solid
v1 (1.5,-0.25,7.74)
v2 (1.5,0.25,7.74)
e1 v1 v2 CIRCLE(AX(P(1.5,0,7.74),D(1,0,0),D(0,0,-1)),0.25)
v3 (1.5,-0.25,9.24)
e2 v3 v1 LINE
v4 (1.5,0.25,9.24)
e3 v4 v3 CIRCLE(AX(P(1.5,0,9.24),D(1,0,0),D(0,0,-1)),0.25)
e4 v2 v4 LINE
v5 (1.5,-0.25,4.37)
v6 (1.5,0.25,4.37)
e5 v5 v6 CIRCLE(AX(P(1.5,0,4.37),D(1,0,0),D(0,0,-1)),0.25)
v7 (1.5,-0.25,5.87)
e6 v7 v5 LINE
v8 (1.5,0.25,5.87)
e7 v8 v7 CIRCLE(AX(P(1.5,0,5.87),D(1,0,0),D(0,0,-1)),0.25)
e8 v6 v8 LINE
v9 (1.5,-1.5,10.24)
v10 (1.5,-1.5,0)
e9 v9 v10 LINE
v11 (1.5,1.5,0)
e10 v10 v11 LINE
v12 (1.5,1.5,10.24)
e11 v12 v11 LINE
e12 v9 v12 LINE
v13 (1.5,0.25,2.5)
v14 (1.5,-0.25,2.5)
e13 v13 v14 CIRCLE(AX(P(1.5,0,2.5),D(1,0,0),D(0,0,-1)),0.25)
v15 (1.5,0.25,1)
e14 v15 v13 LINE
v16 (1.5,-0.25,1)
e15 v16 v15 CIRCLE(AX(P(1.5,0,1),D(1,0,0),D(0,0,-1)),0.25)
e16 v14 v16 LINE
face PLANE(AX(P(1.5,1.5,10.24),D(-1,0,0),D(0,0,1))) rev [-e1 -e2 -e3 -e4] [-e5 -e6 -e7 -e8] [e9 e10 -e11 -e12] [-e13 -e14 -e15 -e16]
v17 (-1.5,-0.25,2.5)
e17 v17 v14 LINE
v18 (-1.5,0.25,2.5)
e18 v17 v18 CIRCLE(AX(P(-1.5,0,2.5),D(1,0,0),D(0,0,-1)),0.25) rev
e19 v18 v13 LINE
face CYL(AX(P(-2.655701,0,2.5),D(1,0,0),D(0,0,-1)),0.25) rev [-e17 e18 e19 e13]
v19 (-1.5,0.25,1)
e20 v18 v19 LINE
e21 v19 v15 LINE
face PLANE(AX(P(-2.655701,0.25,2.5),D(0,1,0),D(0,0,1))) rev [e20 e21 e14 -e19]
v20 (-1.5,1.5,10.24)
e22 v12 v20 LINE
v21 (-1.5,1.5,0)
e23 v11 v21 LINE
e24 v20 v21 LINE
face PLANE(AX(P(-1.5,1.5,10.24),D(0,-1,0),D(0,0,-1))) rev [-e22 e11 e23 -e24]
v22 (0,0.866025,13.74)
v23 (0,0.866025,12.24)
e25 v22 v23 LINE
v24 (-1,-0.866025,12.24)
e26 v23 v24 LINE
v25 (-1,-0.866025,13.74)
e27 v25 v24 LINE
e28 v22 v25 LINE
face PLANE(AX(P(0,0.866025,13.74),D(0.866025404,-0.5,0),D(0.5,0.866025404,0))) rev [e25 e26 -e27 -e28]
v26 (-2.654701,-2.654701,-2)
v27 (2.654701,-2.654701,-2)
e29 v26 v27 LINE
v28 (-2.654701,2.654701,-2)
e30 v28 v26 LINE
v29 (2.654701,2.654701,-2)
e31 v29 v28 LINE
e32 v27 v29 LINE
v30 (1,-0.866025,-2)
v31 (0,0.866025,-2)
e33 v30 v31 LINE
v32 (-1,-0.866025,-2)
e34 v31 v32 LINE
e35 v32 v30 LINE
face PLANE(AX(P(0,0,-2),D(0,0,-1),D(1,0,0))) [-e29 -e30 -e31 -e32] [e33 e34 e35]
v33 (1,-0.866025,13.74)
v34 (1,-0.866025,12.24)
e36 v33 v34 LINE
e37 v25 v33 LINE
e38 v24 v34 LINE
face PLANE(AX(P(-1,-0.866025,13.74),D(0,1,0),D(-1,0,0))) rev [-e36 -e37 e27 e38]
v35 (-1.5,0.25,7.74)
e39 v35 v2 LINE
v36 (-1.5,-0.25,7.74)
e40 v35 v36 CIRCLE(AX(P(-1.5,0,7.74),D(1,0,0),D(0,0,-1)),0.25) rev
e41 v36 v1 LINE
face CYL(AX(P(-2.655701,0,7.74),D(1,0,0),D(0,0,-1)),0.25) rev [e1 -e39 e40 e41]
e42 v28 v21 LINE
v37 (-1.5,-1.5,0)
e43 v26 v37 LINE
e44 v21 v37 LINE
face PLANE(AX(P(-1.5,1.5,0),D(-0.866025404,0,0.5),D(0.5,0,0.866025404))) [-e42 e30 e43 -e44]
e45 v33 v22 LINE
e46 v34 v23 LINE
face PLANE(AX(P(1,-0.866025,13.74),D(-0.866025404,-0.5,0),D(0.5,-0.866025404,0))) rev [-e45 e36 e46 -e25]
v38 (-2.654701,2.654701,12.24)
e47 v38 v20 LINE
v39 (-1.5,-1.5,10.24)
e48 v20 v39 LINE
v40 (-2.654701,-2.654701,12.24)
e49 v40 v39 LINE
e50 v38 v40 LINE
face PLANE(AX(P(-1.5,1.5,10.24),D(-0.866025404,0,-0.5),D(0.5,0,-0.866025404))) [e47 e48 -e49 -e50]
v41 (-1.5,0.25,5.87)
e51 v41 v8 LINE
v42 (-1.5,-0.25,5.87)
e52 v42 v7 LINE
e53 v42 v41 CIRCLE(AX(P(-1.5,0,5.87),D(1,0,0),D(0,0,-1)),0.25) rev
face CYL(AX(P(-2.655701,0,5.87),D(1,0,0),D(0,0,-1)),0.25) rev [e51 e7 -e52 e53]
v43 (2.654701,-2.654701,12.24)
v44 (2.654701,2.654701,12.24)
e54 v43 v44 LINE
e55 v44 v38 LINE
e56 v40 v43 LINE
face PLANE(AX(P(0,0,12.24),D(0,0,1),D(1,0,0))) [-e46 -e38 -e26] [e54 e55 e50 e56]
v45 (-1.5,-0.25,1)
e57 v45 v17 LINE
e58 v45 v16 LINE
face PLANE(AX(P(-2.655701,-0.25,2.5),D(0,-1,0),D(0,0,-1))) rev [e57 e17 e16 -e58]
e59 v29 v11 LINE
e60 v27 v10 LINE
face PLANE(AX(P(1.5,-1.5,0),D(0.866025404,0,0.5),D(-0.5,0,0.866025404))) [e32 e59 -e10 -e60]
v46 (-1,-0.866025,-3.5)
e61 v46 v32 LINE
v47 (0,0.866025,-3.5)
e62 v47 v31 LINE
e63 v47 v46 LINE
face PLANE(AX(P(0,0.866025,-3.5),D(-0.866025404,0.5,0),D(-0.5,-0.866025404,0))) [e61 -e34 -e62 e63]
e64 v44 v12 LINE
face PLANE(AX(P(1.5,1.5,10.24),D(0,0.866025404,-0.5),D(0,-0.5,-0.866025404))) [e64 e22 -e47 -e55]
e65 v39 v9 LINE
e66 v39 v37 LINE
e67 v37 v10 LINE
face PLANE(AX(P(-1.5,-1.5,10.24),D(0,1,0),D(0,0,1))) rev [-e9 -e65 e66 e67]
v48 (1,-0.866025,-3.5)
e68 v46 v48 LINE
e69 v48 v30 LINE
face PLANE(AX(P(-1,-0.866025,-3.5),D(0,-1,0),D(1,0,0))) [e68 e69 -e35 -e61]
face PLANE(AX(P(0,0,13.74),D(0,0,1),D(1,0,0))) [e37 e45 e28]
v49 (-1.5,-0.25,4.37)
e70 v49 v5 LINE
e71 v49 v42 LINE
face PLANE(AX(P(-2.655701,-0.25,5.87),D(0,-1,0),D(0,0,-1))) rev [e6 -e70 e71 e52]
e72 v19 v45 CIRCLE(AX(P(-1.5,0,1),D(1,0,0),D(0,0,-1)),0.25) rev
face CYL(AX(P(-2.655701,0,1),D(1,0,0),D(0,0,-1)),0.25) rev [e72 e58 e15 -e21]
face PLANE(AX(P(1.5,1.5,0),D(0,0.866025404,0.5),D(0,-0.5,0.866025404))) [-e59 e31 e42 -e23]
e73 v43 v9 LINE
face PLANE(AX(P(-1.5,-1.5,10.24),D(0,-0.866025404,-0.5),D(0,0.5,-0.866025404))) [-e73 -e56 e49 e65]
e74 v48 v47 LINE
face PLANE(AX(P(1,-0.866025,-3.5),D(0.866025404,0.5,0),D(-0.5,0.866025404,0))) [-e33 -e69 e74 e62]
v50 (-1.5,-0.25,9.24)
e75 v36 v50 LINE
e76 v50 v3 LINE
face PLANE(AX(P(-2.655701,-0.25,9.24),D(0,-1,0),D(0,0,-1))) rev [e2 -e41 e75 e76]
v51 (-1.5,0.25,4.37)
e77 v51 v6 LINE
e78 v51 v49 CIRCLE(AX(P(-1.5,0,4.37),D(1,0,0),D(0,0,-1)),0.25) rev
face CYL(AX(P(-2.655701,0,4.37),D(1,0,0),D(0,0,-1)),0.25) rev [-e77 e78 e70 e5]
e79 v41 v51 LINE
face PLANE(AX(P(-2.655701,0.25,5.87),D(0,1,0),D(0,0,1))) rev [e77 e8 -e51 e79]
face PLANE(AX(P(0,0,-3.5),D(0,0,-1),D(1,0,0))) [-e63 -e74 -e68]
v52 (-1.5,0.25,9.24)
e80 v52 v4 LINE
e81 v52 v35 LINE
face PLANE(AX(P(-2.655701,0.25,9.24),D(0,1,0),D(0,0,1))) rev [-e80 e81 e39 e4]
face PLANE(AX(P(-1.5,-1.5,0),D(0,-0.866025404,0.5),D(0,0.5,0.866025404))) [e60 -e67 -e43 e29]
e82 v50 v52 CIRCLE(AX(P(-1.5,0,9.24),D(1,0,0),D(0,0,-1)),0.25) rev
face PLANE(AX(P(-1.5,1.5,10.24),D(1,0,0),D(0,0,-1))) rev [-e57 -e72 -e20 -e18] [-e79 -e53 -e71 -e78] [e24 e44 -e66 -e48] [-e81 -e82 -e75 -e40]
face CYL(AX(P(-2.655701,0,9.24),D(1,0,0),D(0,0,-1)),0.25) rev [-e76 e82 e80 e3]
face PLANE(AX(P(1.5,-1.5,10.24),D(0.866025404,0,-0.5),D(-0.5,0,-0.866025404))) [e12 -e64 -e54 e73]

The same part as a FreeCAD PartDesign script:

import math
import FreeCAD as App
import Part
import Sketcher
from FreeCAD import Vector
Q = App.Units.Quantity


def faces_at(feature, points):
    """Names of the faces that lie closest to the given points."""
    faces = feature.Shape.Faces
    near = lambda p: min(range(len(faces)), key=lambda i: faces[i].distToShape(Part.Vertex(*p))[0])
    return sorted({f"Face{near(p) + 1}" for p in points})


def add_polygon(sketch, points):
    """Adds a closed chain of lines whose ends are joined by coincident constraints."""
    first, n = sketch.GeometryCount, len(points)
    for a, b in zip(points, points[1:] + points[:1]):
        sketch.addGeometry(Part.LineSegment(App.Vector(*a, 0), App.Vector(*b, 0)), False)
    for i in range(n):
        sketch.addConstraint(Sketcher.Constraint("Coincident", first + i, 2, first + (i + 1) % n, 1))

doc = App.newDocument("Part")
body = doc.addObject("PartDesign::Body", "Body")

sketch1 = body.newObject("Sketcher::SketchObject", "Sketch")
sketch1.AttachmentSupport = (doc.getObject("XY_Plane"), [""])
sketch1.MapMode = "FlatFace"
add_polygon(sketch1, [(-1.5, 1.5), (-1.5, -1.5), (1.5, -1.5), (1.5, 1.5)])
sketch1.addConstraint([
    Sketcher.Constraint("Vertical", 0),
    Sketcher.Constraint("Horizontal", 1),
    Sketcher.Constraint("Vertical", 2),
    Sketcher.Constraint("Horizontal", 3),
    Sketcher.Constraint("Symmetric", 0, 2, 2, 2, -1, 1),
    Sketcher.Constraint("Equal", 3, 0),
    Sketcher.Constraint("DistanceX", 1, 1, 1, 2, 3.0),
])
pad1 = body.newObject("PartDesign::Pad", "Pad")
pad1.Profile = sketch1
pad1.Length = 10.24
body2 = doc.addObject("PartDesign::Body", "Body001")

sketch2 = body2.newObject("Sketcher::SketchObject", "Sketch001")
sketch2.AttachmentSupport = (doc.getObject("XY_Plane001"), [""])
sketch2.MapMode = "FlatFace"
sketch2.AttachmentOffset = App.Placement(Vector(0, 0, 10.24), App.Rotation())
add_polygon(sketch2, [(-1.5, 1.5), (-1.5, -1.5), (1.5, -1.5), (1.5, 1.5)])
sketch2.addConstraint([
    Sketcher.Constraint("Vertical", 0),
    Sketcher.Constraint("Horizontal", 1),
    Sketcher.Constraint("Vertical", 2),
    Sketcher.Constraint("Horizontal", 3),
    Sketcher.Constraint("Symmetric", 0, 2, 2, 2, -1, 1),
    Sketcher.Constraint("Equal", 3, 0),
    Sketcher.Constraint("DistanceX", 1, 1, 1, 2, 3.0),
])
pad2 = body2.newObject("PartDesign::Pad", "Pad001")
pad2.Profile = sketch2
pad2.Length = 2
doc.recompute()

datumplane = body2.newObject("PartDesign::Plane", "DatumPlane")
datumplane.AttachmentSupport = (doc.getObject("XY_Plane001"), [""])
datumplane.MapMode = "FlatFace"
datumplane.AttachmentOffset = App.Placement(Vector(0, 0, 10.24), App.Rotation())
draft = body2.newObject("PartDesign::Draft", "Draft")
draft.Base = (pad2, faces_at(pad2, [
    (1.5, 0, 11.24),
    (0, 1.5, 11.24),
    (-1.5, 0, 11.24),
    (0, -1.5, 11.24),
]))
draft.NeutralPlane = (datumplane, [""])
draft.Angle = 30
draft.Reversed = True
doc.recompute()

boolean = body.newObject("PartDesign::Boolean", "Boolean")
boolean.Type = "Fuse"
boolean.addObjects([body2])
body3 = doc.addObject("PartDesign::Body", "Body002")

sketch3 = body3.newObject("Sketcher::SketchObject", "Sketch002")
sketch3.AttachmentSupport = (doc.getObject("XY_Plane002"), [""])
sketch3.MapMode = "FlatFace"
add_polygon(sketch3, [(-1.5, -1.5), (-1.5, 1.5), (1.5, 1.5), (1.5, -1.5)])
sketch3.addConstraint([
    Sketcher.Constraint("Vertical", 0),
    Sketcher.Constraint("Horizontal", 1),
    Sketcher.Constraint("Vertical", 2),
    Sketcher.Constraint("Horizontal", 3),
    Sketcher.Constraint("Symmetric", 0, 2, 2, 2, -1, 1),
    Sketcher.Constraint("Equal", 3, 0),
    Sketcher.Constraint("DistanceX", 1, 1, 1, 2, 3.0),
])
pad3 = body3.newObject("PartDesign::Pad", "Pad002")
pad3.Profile = sketch3
pad3.Length = 2
pad3.Reversed = True
doc.recompute()

draft2 = body3.newObject("PartDesign::Draft", "Draft001")
draft2.Base = (pad3, faces_at(pad3, [
    (1.5, 0, -1),
    (0, 1.5, -1),
    (-1.5, 0, -1),
    (0, -1.5, -1),
]))
draft2.NeutralPlane = (doc.getObject("XY_Plane002"), [""])
draft2.Angle = 30
draft2.Reversed = False
doc.recompute()

boolean2 = body.newObject("PartDesign::Boolean", "Boolean001")
boolean2.Type = "Fuse"
boolean2.addObjects([body3])

sketch4 = body.newObject("Sketcher::SketchObject", "Sketch003")
sketch4.AttachmentSupport = (doc.getObject("XY_Plane"), [""])
sketch4.MapMode = "FlatFace"
sketch4.AttachmentOffset = App.Placement(Vector(0, 0, 12.24), App.Rotation())
add_polygon(sketch4, [(0, 0.9), (-1, -0.9), (1, -0.9)])
sketch4.addConstraint([
    Sketcher.Constraint("Horizontal", 1),
    Sketcher.Constraint("PointOnObject", 2, 2, -2),
    Sketcher.Constraint("Equal", 0, 2),
    Sketcher.Constraint("DistanceX", 1, 1, 1, 2, 2.0),
    Sketcher.Constraint("Angle", 0, Q("-120 deg")),
    Sketcher.Constraint("DistanceY", 0, 2, -1, 1, 0.866025),
])
pad4 = body.newObject("PartDesign::Pad", "Pad003")
pad4.Profile = sketch4
pad4.Length = 1.5
doc.recompute()

datumplane2 = body.newObject("PartDesign::Plane", "DatumPlane001")
datumplane2.AttachmentSupport = (doc.getObject("XY_Plane"), [""])
datumplane2.MapMode = "FlatFace"
datumplane2.AttachmentOffset = App.Placement(Vector(0, 0, 5.12), App.Rotation())
mirrored = body.newObject("PartDesign::Mirrored", "Mirrored")
mirrored.Originals = [pad4]
mirrored.MirrorPlane = (datumplane2, [""])
body.Tip = mirrored

sketch5 = body.newObject("Sketcher::SketchObject", "Sketch004")
sketch5.AttachmentSupport = (doc.getObject("YZ_Plane"), [""])
sketch5.MapMode = "FlatFace"
sketch5.AttachmentOffset = App.Placement(Vector(0, 0, 1.5), App.Rotation())
sketch5.addGeometry([
    Part.LineSegment(Vector(0.25, 7.74, 0), Vector(0.25, 9.24, 0)),
    Part.ArcOfCircle(Part.Circle(Vector(0, 9.24, 0), Vector(0, 0, 1), 0.25), math.radians(0), math.radians(180)),
    Part.LineSegment(Vector(-0.25, 9.24, 0), Vector(-0.25, 7.74, 0)),
    Part.ArcOfCircle(Part.Circle(Vector(0, 7.74, 0), Vector(0, 0, 1), 0.25), math.radians(180), math.radians(360)),
], False)
sketch5.addConstraint([
    Sketcher.Constraint("Tangent", 0, 2, 1, 1),
    Sketcher.Constraint("Tangent", 1, 2, 2, 1),
    Sketcher.Constraint("Tangent", 2, 2, 3, 1),
    Sketcher.Constraint("Tangent", 3, 2, 0, 1),
    Sketcher.Constraint("Vertical", 0),
    Sketcher.Constraint("Vertical", 2),
    Sketcher.Constraint("PointOnObject", 1, 3, -2),
    Sketcher.Constraint("Radius", 1, 0.25),
    Sketcher.Constraint("DistanceY", 0, 1, 0, 2, 1.5),
    Sketcher.Constraint("DistanceY", -1, 1, 1, 3, 9.24),
])
pocket1 = body.newObject("PartDesign::Pocket", "Pocket")
pocket1.Profile = sketch5
pocket1.Type = "UpToFirst"

sketch6 = body.newObject("Sketcher::SketchObject", "Sketch005")
sketch6.AttachmentSupport = (doc.getObject("YZ_Plane"), [""])
sketch6.MapMode = "FlatFace"
sketch6.AttachmentOffset = App.Placement(Vector(0, 0, 1.5), App.Rotation())
sketch6.addGeometry([
    Part.LineSegment(Vector(0.25, 4.37, 0), Vector(0.25, 5.87, 0)),
    Part.ArcOfCircle(Part.Circle(Vector(0, 5.87, 0), Vector(0, 0, 1), 0.25), math.radians(0), math.radians(180)),
    Part.LineSegment(Vector(-0.25, 5.87, 0), Vector(-0.25, 4.37, 0)),
    Part.ArcOfCircle(Part.Circle(Vector(0, 4.37, 0), Vector(0, 0, 1), 0.25), math.radians(180), math.radians(360)),
], False)
sketch6.addConstraint([
    Sketcher.Constraint("Tangent", 0, 2, 1, 1),
    Sketcher.Constraint("Tangent", 1, 2, 2, 1),
    Sketcher.Constraint("Tangent", 2, 2, 3, 1),
    Sketcher.Constraint("Tangent", 3, 2, 0, 1),
    Sketcher.Constraint("Vertical", 0),
    Sketcher.Constraint("Vertical", 2),
    Sketcher.Constraint("PointOnObject", 1, 3, -2),
    Sketcher.Constraint("Radius", 1, 0.25),
    Sketcher.Constraint("DistanceY", 0, 1, 0, 2, 1.5),
    Sketcher.Constraint("DistanceY", -1, 1, 1, 3, 5.87),
])
pocket2 = body.newObject("PartDesign::Pocket", "Pocket001")
pocket2.Profile = sketch6
pocket2.Type = "UpToFirst"

sketch7 = body.newObject("Sketcher::SketchObject", "Sketch006")
sketch7.AttachmentSupport = (doc.getObject("YZ_Plane"), [""])
sketch7.MapMode = "FlatFace"
sketch7.AttachmentOffset = App.Placement(Vector(0, 0, 1.5), App.Rotation())
sketch7.addGeometry([
    Part.LineSegment(Vector(0.25, 1, 0), Vector(0.25, 2.5, 0)),
    Part.ArcOfCircle(Part.Circle(Vector(0, 2.5, 0), Vector(0, 0, 1), 0.25), math.radians(0), math.radians(180)),
    Part.LineSegment(Vector(-0.25, 2.5, 0), Vector(-0.25, 1, 0)),
    Part.ArcOfCircle(Part.Circle(Vector(0, 1, 0), Vector(0, 0, 1), 0.25), math.radians(180), math.radians(360)),
], False)
sketch7.addConstraint([
    Sketcher.Constraint("Tangent", 0, 2, 1, 1),
    Sketcher.Constraint("Tangent", 1, 2, 2, 1),
    Sketcher.Constraint("Tangent", 2, 2, 3, 1),
    Sketcher.Constraint("Tangent", 3, 2, 0, 1),
    Sketcher.Constraint("Vertical", 0),
    Sketcher.Constraint("Vertical", 2),
    Sketcher.Constraint("PointOnObject", 1, 3, -2),
    Sketcher.Constraint("Radius", 1, 0.25),
    Sketcher.Constraint("DistanceY", 0, 1, 0, 2, 1.5),
    Sketcher.Constraint("DistanceY", -1, 1, 3, 3, 1.0),
])
pocket3 = body.newObject("PartDesign::Pocket", "Pocket002")
pocket3.Profile = sketch7
pocket3.Type = "UpToFirst"

doc.recompute()
